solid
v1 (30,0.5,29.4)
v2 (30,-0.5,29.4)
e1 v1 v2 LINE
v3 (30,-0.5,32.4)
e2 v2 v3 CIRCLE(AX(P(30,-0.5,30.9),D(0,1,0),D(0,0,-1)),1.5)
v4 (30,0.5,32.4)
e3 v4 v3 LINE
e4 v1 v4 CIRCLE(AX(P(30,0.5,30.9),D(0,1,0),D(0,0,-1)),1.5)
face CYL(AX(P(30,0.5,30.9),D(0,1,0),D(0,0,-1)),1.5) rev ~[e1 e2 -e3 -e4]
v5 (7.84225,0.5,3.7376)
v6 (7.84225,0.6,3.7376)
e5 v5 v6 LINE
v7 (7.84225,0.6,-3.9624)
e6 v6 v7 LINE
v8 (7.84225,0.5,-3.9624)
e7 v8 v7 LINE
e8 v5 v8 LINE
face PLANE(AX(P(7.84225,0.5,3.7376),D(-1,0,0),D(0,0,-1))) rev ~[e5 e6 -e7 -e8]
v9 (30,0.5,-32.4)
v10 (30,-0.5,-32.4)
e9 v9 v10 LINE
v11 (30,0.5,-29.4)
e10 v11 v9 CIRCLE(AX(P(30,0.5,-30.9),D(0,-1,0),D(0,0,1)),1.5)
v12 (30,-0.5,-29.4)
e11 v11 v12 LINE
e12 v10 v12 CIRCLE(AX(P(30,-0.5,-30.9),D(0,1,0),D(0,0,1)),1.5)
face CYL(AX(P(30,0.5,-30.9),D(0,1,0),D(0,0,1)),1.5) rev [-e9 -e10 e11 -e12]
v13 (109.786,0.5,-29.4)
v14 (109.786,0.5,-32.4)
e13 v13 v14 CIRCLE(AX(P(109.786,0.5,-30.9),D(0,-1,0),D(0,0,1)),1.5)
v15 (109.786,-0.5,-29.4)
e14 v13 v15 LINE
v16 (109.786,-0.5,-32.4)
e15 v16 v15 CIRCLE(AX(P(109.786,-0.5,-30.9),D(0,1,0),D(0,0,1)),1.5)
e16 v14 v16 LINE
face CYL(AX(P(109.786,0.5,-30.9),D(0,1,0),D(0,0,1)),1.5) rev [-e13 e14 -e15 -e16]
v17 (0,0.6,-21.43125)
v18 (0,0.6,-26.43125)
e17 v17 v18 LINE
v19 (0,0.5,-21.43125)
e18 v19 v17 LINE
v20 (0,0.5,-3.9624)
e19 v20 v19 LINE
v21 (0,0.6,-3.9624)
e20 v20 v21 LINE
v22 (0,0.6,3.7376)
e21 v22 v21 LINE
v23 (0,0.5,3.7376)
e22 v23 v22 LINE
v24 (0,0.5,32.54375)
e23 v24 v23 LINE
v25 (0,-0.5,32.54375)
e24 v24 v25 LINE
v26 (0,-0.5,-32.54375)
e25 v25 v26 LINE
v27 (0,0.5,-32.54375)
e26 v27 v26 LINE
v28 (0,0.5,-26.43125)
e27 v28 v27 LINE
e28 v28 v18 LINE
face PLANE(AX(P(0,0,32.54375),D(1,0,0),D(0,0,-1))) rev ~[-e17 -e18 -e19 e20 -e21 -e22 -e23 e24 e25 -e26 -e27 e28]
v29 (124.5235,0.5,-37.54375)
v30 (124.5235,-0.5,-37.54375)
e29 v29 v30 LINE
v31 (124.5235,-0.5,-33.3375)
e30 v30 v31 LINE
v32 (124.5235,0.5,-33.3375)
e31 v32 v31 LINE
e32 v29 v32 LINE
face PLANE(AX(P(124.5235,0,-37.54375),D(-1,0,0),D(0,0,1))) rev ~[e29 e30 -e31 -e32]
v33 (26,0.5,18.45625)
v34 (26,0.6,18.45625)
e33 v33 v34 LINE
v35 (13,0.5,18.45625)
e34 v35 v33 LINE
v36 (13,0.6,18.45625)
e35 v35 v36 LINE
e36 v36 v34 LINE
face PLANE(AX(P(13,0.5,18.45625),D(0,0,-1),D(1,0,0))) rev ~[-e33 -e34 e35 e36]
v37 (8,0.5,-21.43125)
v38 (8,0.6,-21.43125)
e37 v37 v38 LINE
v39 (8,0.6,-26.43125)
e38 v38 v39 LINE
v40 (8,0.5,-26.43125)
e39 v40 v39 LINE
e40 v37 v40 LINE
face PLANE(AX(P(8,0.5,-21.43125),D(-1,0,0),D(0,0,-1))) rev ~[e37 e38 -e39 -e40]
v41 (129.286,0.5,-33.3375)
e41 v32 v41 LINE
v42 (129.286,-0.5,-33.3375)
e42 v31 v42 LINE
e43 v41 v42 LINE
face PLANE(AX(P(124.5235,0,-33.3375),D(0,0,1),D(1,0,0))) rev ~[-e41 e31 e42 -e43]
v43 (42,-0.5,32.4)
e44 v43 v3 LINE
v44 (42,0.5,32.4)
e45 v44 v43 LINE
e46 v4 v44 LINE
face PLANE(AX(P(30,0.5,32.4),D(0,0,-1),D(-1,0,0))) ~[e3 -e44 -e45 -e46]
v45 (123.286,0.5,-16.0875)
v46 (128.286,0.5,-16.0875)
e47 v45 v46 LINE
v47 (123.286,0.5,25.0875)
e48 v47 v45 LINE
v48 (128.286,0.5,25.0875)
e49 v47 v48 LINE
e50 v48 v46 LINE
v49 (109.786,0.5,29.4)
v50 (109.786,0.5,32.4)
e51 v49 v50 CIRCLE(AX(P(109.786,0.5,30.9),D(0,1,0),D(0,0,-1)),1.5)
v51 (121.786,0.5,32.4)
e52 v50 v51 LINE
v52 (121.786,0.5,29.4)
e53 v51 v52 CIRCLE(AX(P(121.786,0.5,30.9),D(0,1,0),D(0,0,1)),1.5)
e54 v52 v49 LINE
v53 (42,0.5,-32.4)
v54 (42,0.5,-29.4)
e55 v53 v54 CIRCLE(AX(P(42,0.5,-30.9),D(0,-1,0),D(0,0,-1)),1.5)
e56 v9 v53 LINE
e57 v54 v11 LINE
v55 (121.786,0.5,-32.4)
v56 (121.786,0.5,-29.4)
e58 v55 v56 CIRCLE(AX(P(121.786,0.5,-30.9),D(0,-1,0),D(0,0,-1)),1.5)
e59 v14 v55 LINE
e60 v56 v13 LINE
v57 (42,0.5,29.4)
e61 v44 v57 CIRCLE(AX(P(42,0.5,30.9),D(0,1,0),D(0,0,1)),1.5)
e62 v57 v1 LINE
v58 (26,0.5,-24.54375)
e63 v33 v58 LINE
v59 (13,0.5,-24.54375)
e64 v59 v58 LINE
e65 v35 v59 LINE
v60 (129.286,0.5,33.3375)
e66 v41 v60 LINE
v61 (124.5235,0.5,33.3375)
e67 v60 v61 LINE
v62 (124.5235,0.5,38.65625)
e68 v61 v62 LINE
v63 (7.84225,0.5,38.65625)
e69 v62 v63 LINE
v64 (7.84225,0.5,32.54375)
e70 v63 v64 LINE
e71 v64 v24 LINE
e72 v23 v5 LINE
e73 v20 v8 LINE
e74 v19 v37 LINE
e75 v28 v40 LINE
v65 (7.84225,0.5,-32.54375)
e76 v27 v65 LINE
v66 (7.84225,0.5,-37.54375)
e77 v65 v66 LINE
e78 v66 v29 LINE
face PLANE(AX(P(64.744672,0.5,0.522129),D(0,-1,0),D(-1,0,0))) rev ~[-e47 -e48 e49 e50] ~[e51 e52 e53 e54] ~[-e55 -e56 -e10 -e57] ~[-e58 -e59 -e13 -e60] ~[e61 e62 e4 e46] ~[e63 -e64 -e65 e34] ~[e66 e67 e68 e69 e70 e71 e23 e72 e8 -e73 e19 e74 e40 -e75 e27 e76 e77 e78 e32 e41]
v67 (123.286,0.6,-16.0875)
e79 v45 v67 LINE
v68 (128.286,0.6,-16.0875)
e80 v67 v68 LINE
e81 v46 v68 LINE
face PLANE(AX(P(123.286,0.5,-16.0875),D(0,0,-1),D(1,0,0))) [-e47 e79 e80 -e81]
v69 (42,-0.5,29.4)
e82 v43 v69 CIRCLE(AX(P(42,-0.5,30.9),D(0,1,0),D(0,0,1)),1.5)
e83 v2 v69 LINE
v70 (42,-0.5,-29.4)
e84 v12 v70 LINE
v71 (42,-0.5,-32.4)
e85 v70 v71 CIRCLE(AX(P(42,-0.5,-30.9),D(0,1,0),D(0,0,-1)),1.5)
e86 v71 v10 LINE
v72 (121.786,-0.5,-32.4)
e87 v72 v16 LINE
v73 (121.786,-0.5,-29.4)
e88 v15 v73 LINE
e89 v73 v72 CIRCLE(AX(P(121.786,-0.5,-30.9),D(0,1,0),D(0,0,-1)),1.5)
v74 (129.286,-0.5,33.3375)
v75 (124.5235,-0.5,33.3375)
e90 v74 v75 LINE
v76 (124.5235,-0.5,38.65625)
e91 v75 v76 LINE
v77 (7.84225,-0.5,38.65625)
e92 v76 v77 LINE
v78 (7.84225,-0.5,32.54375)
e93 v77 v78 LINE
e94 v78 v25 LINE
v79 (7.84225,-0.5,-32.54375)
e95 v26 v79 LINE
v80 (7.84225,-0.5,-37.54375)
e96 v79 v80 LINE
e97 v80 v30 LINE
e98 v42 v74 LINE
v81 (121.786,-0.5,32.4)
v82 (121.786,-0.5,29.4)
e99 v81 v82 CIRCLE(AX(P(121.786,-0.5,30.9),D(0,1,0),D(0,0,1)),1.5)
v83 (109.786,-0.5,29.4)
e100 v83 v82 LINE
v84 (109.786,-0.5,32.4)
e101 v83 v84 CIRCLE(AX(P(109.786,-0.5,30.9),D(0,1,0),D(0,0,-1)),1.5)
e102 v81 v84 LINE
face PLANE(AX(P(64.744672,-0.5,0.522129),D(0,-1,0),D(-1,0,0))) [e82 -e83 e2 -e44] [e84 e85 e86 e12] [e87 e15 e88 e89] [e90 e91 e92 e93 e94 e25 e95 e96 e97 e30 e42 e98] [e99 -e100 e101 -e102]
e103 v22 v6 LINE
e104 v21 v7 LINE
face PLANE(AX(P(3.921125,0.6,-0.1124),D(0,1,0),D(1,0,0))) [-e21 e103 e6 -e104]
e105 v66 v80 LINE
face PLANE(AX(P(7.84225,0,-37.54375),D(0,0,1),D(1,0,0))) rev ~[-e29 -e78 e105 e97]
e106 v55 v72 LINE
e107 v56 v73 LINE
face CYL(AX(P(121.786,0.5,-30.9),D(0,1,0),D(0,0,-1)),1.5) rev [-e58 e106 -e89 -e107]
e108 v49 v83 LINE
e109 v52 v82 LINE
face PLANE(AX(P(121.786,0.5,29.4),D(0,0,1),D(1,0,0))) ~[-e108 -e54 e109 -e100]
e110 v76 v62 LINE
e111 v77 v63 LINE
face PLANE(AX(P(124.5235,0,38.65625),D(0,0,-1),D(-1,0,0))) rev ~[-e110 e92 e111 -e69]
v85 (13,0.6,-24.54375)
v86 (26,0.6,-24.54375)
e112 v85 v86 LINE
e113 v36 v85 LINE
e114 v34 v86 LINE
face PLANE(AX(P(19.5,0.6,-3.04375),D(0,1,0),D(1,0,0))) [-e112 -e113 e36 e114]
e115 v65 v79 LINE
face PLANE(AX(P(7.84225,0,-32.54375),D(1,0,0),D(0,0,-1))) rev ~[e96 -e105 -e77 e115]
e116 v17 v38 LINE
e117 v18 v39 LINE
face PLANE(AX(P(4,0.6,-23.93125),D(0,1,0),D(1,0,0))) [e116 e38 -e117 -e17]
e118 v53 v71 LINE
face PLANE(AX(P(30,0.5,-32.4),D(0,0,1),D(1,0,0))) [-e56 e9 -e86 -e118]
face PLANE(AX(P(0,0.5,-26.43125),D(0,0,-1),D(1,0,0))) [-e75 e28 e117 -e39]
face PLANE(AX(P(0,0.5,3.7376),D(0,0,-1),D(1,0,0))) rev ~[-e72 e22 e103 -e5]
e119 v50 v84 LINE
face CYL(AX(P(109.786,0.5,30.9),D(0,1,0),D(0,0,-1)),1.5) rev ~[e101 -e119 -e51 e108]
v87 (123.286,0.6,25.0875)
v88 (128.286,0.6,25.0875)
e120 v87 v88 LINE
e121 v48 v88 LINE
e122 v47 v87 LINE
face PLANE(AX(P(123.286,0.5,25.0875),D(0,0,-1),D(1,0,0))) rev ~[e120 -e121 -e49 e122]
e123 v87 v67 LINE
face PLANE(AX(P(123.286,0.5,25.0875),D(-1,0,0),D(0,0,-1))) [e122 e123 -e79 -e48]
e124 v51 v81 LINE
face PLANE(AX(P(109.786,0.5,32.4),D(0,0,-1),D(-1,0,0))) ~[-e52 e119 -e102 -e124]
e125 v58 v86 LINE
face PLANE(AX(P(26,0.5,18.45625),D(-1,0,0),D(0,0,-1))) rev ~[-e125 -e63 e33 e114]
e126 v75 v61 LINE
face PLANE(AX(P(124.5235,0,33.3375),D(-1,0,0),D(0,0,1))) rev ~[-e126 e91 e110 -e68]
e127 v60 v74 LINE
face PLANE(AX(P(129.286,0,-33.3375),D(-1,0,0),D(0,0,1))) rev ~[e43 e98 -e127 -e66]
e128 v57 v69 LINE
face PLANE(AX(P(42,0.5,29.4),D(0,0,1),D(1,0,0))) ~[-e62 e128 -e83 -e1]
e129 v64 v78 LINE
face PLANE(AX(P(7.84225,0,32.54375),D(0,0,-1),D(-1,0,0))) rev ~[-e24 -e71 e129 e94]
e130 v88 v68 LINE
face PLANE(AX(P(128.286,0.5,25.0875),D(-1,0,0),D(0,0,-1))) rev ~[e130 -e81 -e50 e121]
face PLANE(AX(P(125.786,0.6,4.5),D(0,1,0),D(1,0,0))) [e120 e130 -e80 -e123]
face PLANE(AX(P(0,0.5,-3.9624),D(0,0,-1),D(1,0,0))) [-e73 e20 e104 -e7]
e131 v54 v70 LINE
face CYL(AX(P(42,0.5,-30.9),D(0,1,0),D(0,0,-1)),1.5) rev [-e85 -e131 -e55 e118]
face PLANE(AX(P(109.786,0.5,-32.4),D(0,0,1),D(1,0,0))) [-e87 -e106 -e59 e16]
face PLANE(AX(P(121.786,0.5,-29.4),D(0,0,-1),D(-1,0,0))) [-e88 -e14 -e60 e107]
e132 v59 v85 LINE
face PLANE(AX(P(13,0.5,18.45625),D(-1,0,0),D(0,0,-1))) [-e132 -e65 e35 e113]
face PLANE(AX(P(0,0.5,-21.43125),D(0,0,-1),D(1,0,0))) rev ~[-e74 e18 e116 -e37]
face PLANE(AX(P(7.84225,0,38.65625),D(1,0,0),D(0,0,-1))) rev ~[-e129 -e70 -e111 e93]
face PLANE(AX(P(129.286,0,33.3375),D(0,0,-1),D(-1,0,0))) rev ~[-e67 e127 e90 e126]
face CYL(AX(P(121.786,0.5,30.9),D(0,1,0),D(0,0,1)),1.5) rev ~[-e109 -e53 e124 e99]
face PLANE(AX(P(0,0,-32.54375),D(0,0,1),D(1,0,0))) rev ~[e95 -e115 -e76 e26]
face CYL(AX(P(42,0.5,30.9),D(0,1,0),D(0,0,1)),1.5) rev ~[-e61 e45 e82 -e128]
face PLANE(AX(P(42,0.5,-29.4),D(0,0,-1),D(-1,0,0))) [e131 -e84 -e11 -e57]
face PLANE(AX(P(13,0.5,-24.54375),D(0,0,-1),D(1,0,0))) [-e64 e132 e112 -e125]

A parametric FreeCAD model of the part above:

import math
import FreeCAD as App
import Part
import Sketcher

V = App.Vector
Q = App.Units.Quantity


def add_polygon(sketch, points):
    """Adds a closed chain of lines whose ends are joined by coincident constraints."""
    first, n = sketch.GeometryCount, len(points)
    for a, b in zip(points, points[1:] + points[:1]):
        sketch.addGeometry(Part.LineSegment(App.Vector(*a, 0), App.Vector(*b, 0)), False)
    for i in range(n):
        sketch.addConstraint(Sketcher.Constraint("Coincident", first + i, 2, first + (i + 1) % n, 1))

doc = App.newDocument("Part")
body = doc.addObject("PartDesign::Body", "Body")

# Sketch on XZ plane
sketch1 = body.newObject("Sketcher::SketchObject", "Sketch")
sketch1.AttachmentSupport = (doc.getObject("XZ_Plane"), [""])
sketch1.MapMode = "FlatFace"
add_polygon(sketch1, [(7.8, 32.5), (7.8, 38.7), (124.5, 38.7), (124.5, 33.3), (129.3, 33.3), (129.3, -33.3), (124.5, -33.3), (124.5, -37.5), (7.8, -37.5), (7.8, -32.5), (0, -32.5), (0, 32.5)])  # lines 0-11
sketch1.addConstraint([
    Sketcher.Constraint("Vertical", 0),
    Sketcher.Constraint("Horizontal", 1),
    Sketcher.Constraint("Vertical", 2),
    Sketcher.Constraint("Horizontal", 3),
    Sketcher.Constraint("Vertical", 4),
    Sketcher.Constraint("Horizontal", 5),
    Sketcher.Constraint("Vertical", 6),
    Sketcher.Constraint("Horizontal", 7),
    Sketcher.Constraint("Vertical", 8),
    Sketcher.Constraint("Horizontal", 9),
    Sketcher.Constraint("Vertical", 10),
    Sketcher.Constraint("Horizontal", 11),
    Sketcher.Constraint("Symmetric", 9, 2, 10, 2, -1, 1),
    Sketcher.Constraint("Symmetric", 2, 2, 5, 2, -1),
    Sketcher.Constraint("Vertical", 0, 2, 7, 2),
    Sketcher.Constraint("DistanceY", 8, 1, 8, 2, Q("5 mm")),
    Sketcher.Constraint("DistanceY", 6, 2, 1, 2, Q("76.2 mm")),
    Sketcher.Constraint("DistanceY", 4, 2, 4, 1, Q("66.675 mm")),
    Sketcher.Constraint("DistanceX", 3, 1, 3, 2, Q("4.7625 mm")),
    Sketcher.Constraint("DistanceY", 0, 1, 0, 2, Q("6.1125 mm")),
    Sketcher.Constraint("DistanceX", -1, 1, 3, 2, Q("129.286 mm")),
    Sketcher.Constraint("DistanceX", 1, 1, 1, 2, Q("116.68125 mm")),
])
pad1 = body.newObject("PartDesign::Pad", "Pad")
pad1.Profile = sketch1
pad1.Length = 1
pad1.Midplane = True

# Sketch on XZ plane
sketch2 = body.newObject("Sketcher::SketchObject", "Sketch001")
sketch2.AttachmentSupport = (doc.getObject("XZ_Plane"), [""])
sketch2.MapMode = "FlatFace"
sketch2.AttachmentOffset = App.Placement(V(0, 0, -0.5), App.Rotation())
sketch2.addGeometry([
    Part.LineSegment(V(42, -32.4, 0), V(30, -32.4, 0)),  # 0
    Part.ArcOfCircle(Part.Circle(V(30, -30.9, 0), V(0, 0, 1), 1.5), math.radians(90), math.radians(270)),  # 1
    Part.LineSegment(V(30, -29.4, 0), V(42, -29.4, 0)),  # 2
    Part.ArcOfCircle(Part.Circle(V(42, -30.9, 0), V(0, 0, 1), 1.5), math.radians(-90), math.radians(90)),  # 3
    Part.LineSegment(V(121.8, -32.4, 0), V(109.8, -32.4, 0)),  # 4
    Part.ArcOfCircle(Part.Circle(V(109.8, -30.9, 0), V(0, 0, 1), 1.5), math.radians(90), math.radians(270)),  # 5
    Part.LineSegment(V(109.8, -29.4, 0), V(121.8, -29.4, 0)),  # 6
    Part.ArcOfCircle(Part.Circle(V(121.8, -30.9, 0), V(0, 0, 1), 1.5), math.radians(-90), math.radians(90)),  # 7
], False)
sketch2.addConstraint([
    Sketcher.Constraint("Tangent", 0, 2, 1, 2),
    Sketcher.Constraint("Tangent", 1, 1, 2, 1),
    Sketcher.Constraint("Tangent", 2, 2, 3, 2),
    Sketcher.Constraint("Tangent", 3, 1, 0, 1),
    Sketcher.Constraint("Tangent", 4, 2, 5, 2),
    Sketcher.Constraint("Tangent", 5, 1, 6, 1),
    Sketcher.Constraint("Tangent", 6, 2, 7, 2),
    Sketcher.Constraint("Tangent", 7, 1, 4, 1),
    Sketcher.Constraint("Horizontal", 0),
    Sketcher.Constraint("Horizontal", 2),
    Sketcher.Constraint("Horizontal", 4),
    Sketcher.Constraint("Horizontal", 6),
    Sketcher.Constraint("Equal", 3, 5),
    Sketcher.Constraint("Horizontal", 3, 3, 5, 3),
    Sketcher.Constraint("Equal", 2, 4),
    Sketcher.Constraint("Radius", 1, Q("1.5 mm")),
    Sketcher.Constraint("DistanceX", 0, 2, 0, 1, Q("12 mm")),
    Sketcher.Constraint("DistanceX", -1, 1, 1, 3, Q("30 mm")),
    Sketcher.Constraint("DistanceY", 1, 3, -1, 1, Q("30.9 mm")),
    Sketcher.Constraint("DistanceX", -1, 1, 5, 3, Q("109.786 mm")),
])
pocket1 = body.newObject("PartDesign::Pocket", "Pocket")
pocket1.Profile = sketch2
pocket1.Type = "ThroughAll"
pocket1.Reversed = True
doc.recompute()

mirrored = body.newObject("PartDesign::Mirrored", "Mirrored")
mirrored.Originals = [pocket1]
mirrored.MirrorPlane = (doc.getObject("XY_Plane"), [""])
body.Tip = mirrored

# Sketch on XZ plane
sketch3 = body.newObject("Sketcher::SketchObject", "Sketch002")
sketch3.AttachmentSupport = (doc.getObject("XZ_Plane"), [""])
sketch3.MapMode = "FlatFace"
sketch3.AttachmentOffset = App.Placement(V(0, 0, -0.5), App.Rotation())
add_polygon(sketch3, [(0, -4), (0, 4), (8, 4), (8, -4)])  # lines 0-3
add_polygon(sketch3, [(13, -25), (13, 18), (26, 18), (26, -25)])  # lines 4-7
add_polygon(sketch3, [(0, -26), (0, -21), (8, -21), (8, -26)])  # lines 8-11
add_polygon(sketch3, [(123, -16), (123, 25), (128, 25), (128, -16)])  # lines 12-15
sketch3.addConstraint([
    Sketcher.Constraint("Vertical", 0),
    Sketcher.Constraint("Horizontal", 1),
    Sketcher.Constraint("Vertical", 2),
    Sketcher.Constraint("Horizontal", 3),
    Sketcher.Constraint("Vertical", 4),
    Sketcher.Constraint("Horizontal", 5),
    Sketcher.Constraint("Vertical", 6),
    Sketcher.Constraint("Horizontal", 7),
    Sketcher.Constraint("Vertical", 8),
    Sketcher.Constraint("Horizontal", 9),
    Sketcher.Constraint("Vertical", 10),
    Sketcher.Constraint("Horizontal", 11),
    Sketcher.Constraint("Vertical", 12),
    Sketcher.Constraint("Horizontal", 13),
    Sketcher.Constraint("Vertical", 14),
    Sketcher.Constraint("Horizontal", 15),
    Sketcher.Constraint("PointOnObject", 0, 2, -2),
    Sketcher.Constraint("PointOnObject", 8, 2, -2),
    Sketcher.Constraint("Equal", 15, 8),
    Sketcher.Constraint("DistanceX", 5, 1, 5, 2, Q("13 mm")),
    Sketcher.Constraint("DistanceX", 9, 1, 9, 2, Q("8 mm")),
    Sketcher.Constraint("DistanceX", 13, 1, 13, 2, Q("5 mm")),
    Sketcher.Constraint("DistanceY", 4, 1, 4, 2, Q("43 mm")),
    Sketcher.Constraint("DistanceY", 0, 1, 0, 2, Q("7.7 mm")),
    Sketcher.Constraint("DistanceX", -1, 1, 4, 2, Q("13 mm")),
    Sketcher.Constraint("DistanceY", 12, 1, 12, 2, Q("41.175 mm")),
    Sketcher.Constraint("DistanceX", -1, 1, 12, 2, Q("123.286 mm")),
    Sketcher.Constraint("DistanceX", 1, 1, 1, 2, Q("7.84225 mm")),
    Sketcher.Constraint("DistanceY", -1, 1, 0, 2, Q("3.7376 mm")),
    Sketcher.Constraint("DistanceY", -1, 1, 12, 2, Q("25.0875 mm")),
    Sketcher.Constraint("DistanceY", 7, 2, 8, 2, Q("3.1125 mm")),
    Sketcher.Constraint("DistanceY", -1, 1, 4, 2, Q("18.45625 mm")),
])
pad2 = body.newObject("PartDesign::Pad", "Pad001")
pad2.Profile = sketch3
pad2.Length = 0.1
pad2.Reversed = True

doc.recompute()
